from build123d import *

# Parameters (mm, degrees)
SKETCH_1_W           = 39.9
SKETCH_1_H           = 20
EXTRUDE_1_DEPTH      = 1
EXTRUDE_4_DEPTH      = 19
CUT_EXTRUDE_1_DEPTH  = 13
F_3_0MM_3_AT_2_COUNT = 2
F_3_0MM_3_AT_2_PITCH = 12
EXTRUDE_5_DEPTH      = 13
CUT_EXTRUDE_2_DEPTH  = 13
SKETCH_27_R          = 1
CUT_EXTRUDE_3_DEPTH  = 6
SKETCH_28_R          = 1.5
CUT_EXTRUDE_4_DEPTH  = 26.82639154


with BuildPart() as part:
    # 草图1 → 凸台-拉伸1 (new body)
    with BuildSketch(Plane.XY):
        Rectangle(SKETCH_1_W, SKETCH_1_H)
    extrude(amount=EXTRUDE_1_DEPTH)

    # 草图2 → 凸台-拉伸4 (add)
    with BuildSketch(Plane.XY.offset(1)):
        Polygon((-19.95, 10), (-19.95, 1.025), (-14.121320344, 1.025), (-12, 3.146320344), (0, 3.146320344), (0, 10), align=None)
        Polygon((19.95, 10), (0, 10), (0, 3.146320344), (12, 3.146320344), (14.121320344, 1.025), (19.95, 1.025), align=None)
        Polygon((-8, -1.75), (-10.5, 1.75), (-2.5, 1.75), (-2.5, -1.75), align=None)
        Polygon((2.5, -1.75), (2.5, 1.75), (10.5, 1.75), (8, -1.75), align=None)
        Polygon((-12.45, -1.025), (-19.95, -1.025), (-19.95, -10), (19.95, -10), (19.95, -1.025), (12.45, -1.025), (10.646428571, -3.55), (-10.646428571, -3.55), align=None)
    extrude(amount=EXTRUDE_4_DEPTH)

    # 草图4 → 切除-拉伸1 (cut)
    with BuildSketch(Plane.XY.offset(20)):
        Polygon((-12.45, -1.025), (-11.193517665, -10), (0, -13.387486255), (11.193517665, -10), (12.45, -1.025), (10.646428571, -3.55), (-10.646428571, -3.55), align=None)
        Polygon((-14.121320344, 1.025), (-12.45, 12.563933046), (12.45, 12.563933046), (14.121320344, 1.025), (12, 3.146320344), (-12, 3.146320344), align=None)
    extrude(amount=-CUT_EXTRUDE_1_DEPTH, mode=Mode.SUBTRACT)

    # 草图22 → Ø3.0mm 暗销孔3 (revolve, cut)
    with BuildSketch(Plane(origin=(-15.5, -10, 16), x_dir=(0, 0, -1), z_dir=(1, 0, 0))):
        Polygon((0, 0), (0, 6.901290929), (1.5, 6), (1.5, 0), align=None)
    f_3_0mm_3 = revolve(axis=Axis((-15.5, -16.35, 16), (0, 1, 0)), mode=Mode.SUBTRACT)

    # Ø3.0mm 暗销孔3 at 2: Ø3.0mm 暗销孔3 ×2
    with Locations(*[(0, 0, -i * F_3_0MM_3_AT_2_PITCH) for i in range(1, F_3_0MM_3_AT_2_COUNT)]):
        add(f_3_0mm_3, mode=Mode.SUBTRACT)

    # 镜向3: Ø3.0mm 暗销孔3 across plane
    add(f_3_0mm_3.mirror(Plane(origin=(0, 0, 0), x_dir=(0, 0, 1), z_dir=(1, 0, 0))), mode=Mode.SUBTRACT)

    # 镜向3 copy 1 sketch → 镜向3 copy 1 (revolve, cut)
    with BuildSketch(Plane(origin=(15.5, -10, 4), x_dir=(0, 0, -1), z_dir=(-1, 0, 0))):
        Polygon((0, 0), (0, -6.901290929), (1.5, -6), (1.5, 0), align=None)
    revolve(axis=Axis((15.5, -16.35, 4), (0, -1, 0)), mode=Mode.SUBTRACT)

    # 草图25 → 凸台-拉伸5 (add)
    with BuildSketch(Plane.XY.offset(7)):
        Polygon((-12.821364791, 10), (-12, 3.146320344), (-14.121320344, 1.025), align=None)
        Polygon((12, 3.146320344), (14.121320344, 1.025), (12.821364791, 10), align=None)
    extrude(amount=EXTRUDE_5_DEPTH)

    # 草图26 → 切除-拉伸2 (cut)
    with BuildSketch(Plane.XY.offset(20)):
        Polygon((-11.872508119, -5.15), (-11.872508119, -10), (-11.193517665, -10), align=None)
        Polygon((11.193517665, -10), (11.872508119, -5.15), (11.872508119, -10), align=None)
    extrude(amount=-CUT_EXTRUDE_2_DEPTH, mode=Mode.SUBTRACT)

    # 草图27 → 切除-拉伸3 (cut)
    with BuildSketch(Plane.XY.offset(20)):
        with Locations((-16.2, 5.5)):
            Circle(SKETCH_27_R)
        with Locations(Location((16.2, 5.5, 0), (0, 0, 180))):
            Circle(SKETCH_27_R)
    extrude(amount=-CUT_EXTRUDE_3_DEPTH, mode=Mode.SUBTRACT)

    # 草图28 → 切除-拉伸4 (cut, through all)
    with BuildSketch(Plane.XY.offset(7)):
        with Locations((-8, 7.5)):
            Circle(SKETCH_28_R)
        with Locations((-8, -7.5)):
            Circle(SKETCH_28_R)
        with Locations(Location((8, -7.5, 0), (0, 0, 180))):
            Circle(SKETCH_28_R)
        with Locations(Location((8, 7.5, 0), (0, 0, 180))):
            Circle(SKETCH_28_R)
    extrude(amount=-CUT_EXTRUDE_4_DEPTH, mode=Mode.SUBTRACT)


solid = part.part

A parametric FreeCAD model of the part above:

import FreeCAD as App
import Part
import Sketcher
from FreeCAD import Vector
Q = App.Units.Quantity


def add_polygon(sketch, points):
    """Adds a closed chain of lines whose ends are joined by coincident constraints."""
    first, n = sketch.GeometryCount, len(points)
    for a, b in zip(points, points[1:] + points[:1]):
        sketch.addGeometry(Part.LineSegment(App.Vector(*a, 0), App.Vector(*b, 0)), False)
    for i in range(n):
        sketch.addConstraint(Sketcher.Constraint("Coincident", first + i, 2, first + (i + 1) % n, 1))

doc = App.newDocument("Part")
body = doc.addObject("PartDesign::Body", "Body")

# Sketch on XY plane
sketch1 = body.newObject("Sketcher::SketchObject", "Sketch")
sketch1.AttachmentSupport = (doc.getObject("XY_Plane"), [""])
sketch1.MapMode = "FlatFace"
add_polygon(sketch1, [(-20, 10), (-20, -10), (20, -10), (20, 10)])  # lines 0-3
sketch1.addConstraint([
    Sketcher.Constraint("Vertical", 0),
    Sketcher.Constraint("Horizontal", 1),
    Sketcher.Constraint("Vertical", 2),
    Sketcher.Constraint("Horizontal", 3),
    Sketcher.Constraint("Symmetric", 0, 2, 2, 2, -1, 1),
    Sketcher.Constraint("DistanceY", 0, 2, 0, 1, 20.0),
    Sketcher.Constraint("DistanceX", 1, 1, 1, 2, 39.9),
])
pad1 = body.newObject("PartDesign::Pad", "Pad")
pad1.Profile = sketch1
pad1.Length = 1

# Sketch on XY plane
sketch2 = body.newObject("Sketcher::SketchObject", "Sketch001")
sketch2.AttachmentSupport = (doc.getObject("XY_Plane"), [""])
sketch2.MapMode = "FlatFace"
sketch2.AttachmentOffset = App.Placement(Vector(0, 0, 1), App.Rotation())
add_polygon(sketch2, [(-19.9, 10), (-19.9, 1), (-14.1, 1), (-12, 3.1), (12, 3.1), (14.1, 1), (19.9, 1), (19.9, 10)])  # lines 0-7
add_polygon(sketch2, [(-10.5, 1.8), (-8, -1.8), (-2.5, -1.8), (-2.5, 1.8)])  # lines 8-11
add_polygon(sketch2, [(2.5, 1.8), (2.5, -1.8), (8, -1.8), (10.5, 1.8)])  # lines 12-15
add_polygon(sketch2, [(-12.4, -1), (-19.9, -1), (-19.9, -10), (19.9, -10), (19.9, -1), (12.4, -1), (10.6, -3.5), (-10.6, -3.5)])  # lines 16-23
sketch2.addConstraint([
    Sketcher.Constraint("Vertical", 0),
    Sketcher.Constraint("Horizontal", 1),
    Sketcher.Constraint("Horizontal", 3),
    Sketcher.Constraint("Horizontal", 5),
    Sketcher.Constraint("Vertical", 6),
    Sketcher.Constraint("Horizontal", 7),
    Sketcher.Constraint("Horizontal", 9),
    Sketcher.Constraint("Vertical", 10),
    Sketcher.Constraint("Horizontal", 11),
    Sketcher.Constraint("Vertical", 12),
    Sketcher.Constraint("Horizontal", 13),
    Sketcher.Constraint("Horizontal", 15),
    Sketcher.Constraint("Horizontal", 16),
    Sketcher.Constraint("Vertical", 17),
    Sketcher.Constraint("Horizontal", 18),
    Sketcher.Constraint("Vertical", 19),
    Sketcher.Constraint("Horizontal", 20),
    Sketcher.Constraint("Horizontal", 22),
    Sketcher.Constraint("Symmetric", 10, 2, 12, 2, -1, 1),
    Sketcher.Constraint("Symmetric", 5, 2, 16, 2, -1, 1),
    Sketcher.Constraint("Symmetric", 7, 2, 18, 2, -1, 1),
    Sketcher.Constraint("Symmetric", 1, 2, 4, 2, -2),
    Sketcher.Constraint("Symmetric", 8, 2, 13, 2, -2),
    Sketcher.Constraint("Symmetric", 11, 2, 14, 2, -2),
    Sketcher.Constraint("Symmetric", 16, 2, 19, 2, -2),
    Sketcher.Constraint("Perpendicular", 2, 4),
    Sketcher.Constraint("Parallel", 14, 21),
    Sketcher.Constraint("Parallel", 8, 23),
    Sketcher.Constraint("Equal", 16, 20),
    Sketcher.Constraint("Equal", 2, 4),
    Sketcher.Constraint("DistanceX", 3, 1, 3, 2, 24.0),
    Sketcher.Constraint("DistanceX", 11, 2, 11, 1, 8.0),
    Sketcher.Constraint("Distance", 2, 3.0),
    Sketcher.Constraint("DistanceX", 7, 2, 7, 1, 39.9),
    Sketcher.Constraint("DistanceX", 9, 1, 9, 2, 5.5),
    Sketcher.Constraint("DistanceX", 16, 2, 16, 1, 7.5),
    Sketcher.Constraint("DistanceY", 10, 1, 10, 2, 3.5),
    Sketcher.Constraint("DistanceY", -1, 1, 6, 2, 10.0),
    Sketcher.Constraint("DistanceX", 8, 2, -1, 1, 8.0),
    Sketcher.Constraint("DistanceY", 21, 2, 13, 2, 1.8),
    Sketcher.Constraint("DistanceY", 0, 2, 0, 1, 8.975),
])
pad2 = body.newObject("PartDesign::Pad", "Pad001")
pad2.Profile = sketch2
pad2.Length = 19

# Sketch on XY plane
sketch3 = body.newObject("Sketcher::SketchObject", "Sketch002")
sketch3.AttachmentSupport = (doc.getObject("XY_Plane"), [""])
sketch3.MapMode = "FlatFace"
sketch3.AttachmentOffset = App.Placement(Vector(0, 0, 20), App.Rotation())
add_polygon(sketch3, [(-12.4, -1), (-11.2, -10), (0, -13.4), (11.2, -10), (12.4, -1), (10.6, -3.5), (-10.6, -3.5)])  # lines 0-6
add_polygon(sketch3, [(-12.4, 12.6), (-14.1, 1), (-12, 3.1), (12, 3.1), (14.1, 1), (12.4, 12.6)])  # lines 7-12
sketch3.addConstraint([
    Sketcher.Constraint("Horizontal", 5),
    Sketcher.Constraint("Horizontal", 9),
    Sketcher.Constraint("Horizontal", 12),
    Sketcher.Constraint("Symmetric", 0, 2, 2, 2, -2),
    Sketcher.Constraint("Symmetric", 3, 2, 6, 2, -2),
    Sketcher.Constraint("Symmetric", 7, 2, 10, 2, -2),
    Sketcher.Constraint("PointOnObject", 1, 2, -2),
    Sketcher.Constraint("Perpendicular", 8, 10),
    Sketcher.Constraint("Vertical", 3, 2, 11, 2),
    Sketcher.Constraint("Vertical", 6, 2, 12, 2),
    Sketcher.Constraint("Equal", 4, 6),
    Sketcher.Constraint("Equal", 8, 10),
    Sketcher.Constraint("DistanceX", 9, 1, 9, 2, 24.0),
    Sketcher.Constraint("Distance", 8, 3.0),
    Sketcher.Constraint("DistanceX", 12, 2, 12, 1, 24.9),
    Sketcher.Constraint("DistanceY", 0, 2, -1, 1, 10.0),
    Sketcher.Constraint("DistanceY", 4, 2, -1, 1, 3.55),
    Sketcher.Constraint("DistanceY", 6, 2, 7, 2, 2.05),
    Sketcher.Constraint("DistanceY", 3, 2, -1, 1, 1.025),
    Sketcher.Constraint("Distance", 4, 3.102982),
    Sketcher.Constraint("DistanceX", 4, 2, 2, 2, 0.547089),
    Sketcher.Constraint("Distance", 1, 11.694866),
    Sketcher.Constraint("Distance", 7, 11.659343),
])
pocket1 = body.newObject("PartDesign::Pocket", "Pocket")
pocket1.Profile = sketch3
pocket1.Length = 13

# Sketch on YZ plane
sketch4 = body.newObject("Sketcher::SketchObject", "Sketch003")
sketch4.AttachmentSupport = (doc.getObject("YZ_Plane"), [""])
sketch4.MapMode = "FlatFace"
sketch4.AttachmentOffset = App.Placement(Vector(0, 0, -15.5), App.Rotation())
add_polygon(sketch4, [(-3.1, 16), (-10, 16), (-10, 14.5), (-4, 14.5)])  # lines 0-3
sketch4.addGeometry(Part.LineSegment(Vector(-10, 16, 0), Vector(-3.1, 16, 0)), True)  # axis
sketch4.addConstraint([
    Sketcher.Constraint("Horizontal", 0),
    Sketcher.Constraint("Vertical", 1),
    Sketcher.Constraint("Horizontal", 2),
    Sketcher.Constraint("Horizontal", 4),
    Sketcher.Constraint("Coincident", 4, 1, 0, 2),
    Sketcher.Constraint("Equal", 0, 4),
    Sketcher.Constraint("DistanceX", 2, 1, 2, 2, 6.0),
    Sketcher.Constraint("Angle", 3, Q("59 deg")),
    Sketcher.Constraint("DistanceY", 1, 2, 1, 1, 1.5),
    Sketcher.Constraint("DistanceX", 0, 2, -1, 1, 10.0),
    Sketcher.Constraint("DistanceY", -1, 1, 0, 2, 16.0),
])
groove = body.newObject("PartDesign::Groove", "Groove")
groove.Profile = sketch4
groove.ReferenceAxis = (sketch4, ["Axis0"])
groove.Angle = 360
doc.recompute()

linearpattern = body.newObject("PartDesign::LinearPattern", "LinearPattern")
linearpattern.Originals = [groove]
linearpattern.Direction = (doc.getObject("Z_Axis"), [""])
linearpattern.Mode = "offset"
linearpattern.Offset = 12
linearpattern.Occurrences = 2
linearpattern.Reversed = True
body.Tip = linearpattern
doc.recompute()

mirrored = body.newObject("PartDesign::Mirrored", "Mirrored")
mirrored.Originals = [groove]
mirrored.MirrorPlane = (doc.getObject("YZ_Plane"), [""])
body.Tip = mirrored

# Sketch on YZ plane
sketch5 = body.newObject("Sketcher::SketchObject", "Sketch004")
sketch5.AttachmentSupport = (doc.getObject("YZ_Plane"), [""])
sketch5.MapMode = "FlatFace"
sketch5.AttachmentOffset = App.Placement(Vector(0, 0, 15.5), App.Rotation())
add_polygon(sketch5, [(-10, 4), (-3.1, 4), (-4, 2.5), (-10, 2.5)])  # lines 0-3
sketch5.addGeometry(Part.LineSegment(Vector(-3.1, 4, 0), Vector(-10, 4, 0)), True)  # axis
sketch5.addConstraint([
    Sketcher.Constraint("Horizontal", 0),
    Sketcher.Constraint("Horizontal", 2),
    Sketcher.Constraint("Vertical", 3),
    Sketcher.Constraint("Horizontal", 4),
    Sketcher.Constraint("Coincident", 4, 1, 0, 2),
    Sketcher.Constraint("Vertical", 2, 2, 4, 2),
    Sketcher.Constraint("DistanceX", 2, 2, 2, 1, 6.0),
    Sketcher.Constraint("Angle", 1, Q("-121 deg")),
    Sketcher.Constraint("DistanceY", 3, 1, 3, 2, 1.5),
    Sketcher.Constraint("DistanceY", -1, 1, 0, 2, 4.0),
    Sketcher.Constraint("DistanceX", 1, 2, -1, 1, 4.0),
])
groove2 = body.newObject("PartDesign::Groove", "Groove001")
groove2.Profile = sketch5
groove2.ReferenceAxis = (sketch5, ["Axis0"])
groove2.Angle = 360

# Sketch on XY plane
sketch6 = body.newObject("Sketcher::SketchObject", "Sketch005")
sketch6.AttachmentSupport = (doc.getObject("XY_Plane"), [""])
sketch6.MapMode = "FlatFace"
sketch6.AttachmentOffset = App.Placement(Vector(0, 0, 7), App.Rotation())
add_polygon(sketch6, [(-12, 3.1), (-12.8, 10), (-14.1, 1)])  # lines 0-2
add_polygon(sketch6, [(12, 3.1), (14.1, 1), (12.8, 10)])  # lines 3-5
sketch6.addConstraint([
    Sketcher.Constraint("Symmetric", 1, 2, 3, 2, -2),
    Sketcher.Constraint("Symmetric", 0, 2, 4, 2, -2),
    Sketcher.Constraint("Symmetric", 2, 2, 5, 2, -2),
    Sketcher.Constraint("Perpendicular", 2, 3),
    Sketcher.Constraint("Distance", 2, 3.0),
    Sketcher.Constraint("DistanceY", -1, 1, 0, 2, 10.0),
    Sketcher.Constraint("DistanceX", 2, 2, -1, 1, 12.0),
    Sketcher.Constraint("DistanceY", -1, 1, 1, 2, 1.025),
    Sketcher.Constraint("Distance", 0, 6.902722),
])
pad3 = body.newObject("PartDesign::Pad", "Pad002")
pad3.Profile = sketch6
pad3.Length = 13

# Sketch on XY plane
sketch7 = body.newObject("Sketcher::SketchObject", "Sketch006")
sketch7.AttachmentSupport = (doc.getObject("XY_Plane"), [""])
sketch7.MapMode = "FlatFace"
sketch7.AttachmentOffset = App.Placement(Vector(0, 0, 20), App.Rotation())
add_polygon(sketch7, [(-11.9, -5.2), (-11.9, -10), (-11.2, -10)])  # lines 0-2
add_polygon(sketch7, [(11.9, -5.2), (11.2, -10), (11.9, -10)])  # lines 3-5
sketch7.addConstraint([
    Sketcher.Constraint("Vertical", 0),
    Sketcher.Constraint("Horizontal", 1),
    Sketcher.Constraint("Horizontal", 4),
    Sketcher.Constraint("Vertical", 5),
    Sketcher.Constraint("Symmetric", 1, 2, 3, 2, -2),
    Sketcher.Constraint("Symmetric", 2, 2, 5, 2, -2),
    Sketcher.Constraint("DistanceY", 0, 2, -1, 1, 10.0),
    Sketcher.Constraint("DistanceY", 0, 2, 0, 1, 4.85),
    Sketcher.Constraint("Distance", 2, 4.897298),
    Sketcher.Constraint("DistanceX", 0, 2, -1, 1, 11.872508),
])
pocket2 = body.newObject("PartDesign::Pocket", "Pocket001")
pocket2.Profile = sketch7
pocket2.Length = 13

# Sketch on XY plane
sketch8 = body.newObject("Sketcher::SketchObject", "Sketch007")
sketch8.AttachmentSupport = (doc.getObject("XY_Plane"), [""])
sketch8.MapMode = "FlatFace"
sketch8.AttachmentOffset = App.Placement(Vector(0, 0, 20), App.Rotation())
sketch8.addGeometry([
    Part.Circle(Vector(-16.2, 5.5, 0), Vector(0, 0, 1), 1),
    Part.Circle(Vector(16.2, 5.5, 0), Vector(0, 0, 1), 1),
], False)
sketch8.addConstraint([
    Sketcher.Constraint("Equal", 0, 1),
    Sketcher.Constraint("Symmetric", 0, 3, 1, 3, -2),
    Sketcher.Constraint("Diameter", 0, 2.0),
    Sketcher.Constraint("DistanceX", 0, 3, -1, 1, 16.2),
    Sketcher.Constraint("DistanceY", -1, 1, 0, 3, 5.5),
])
pocket3 = body.newObject("PartDesign::Pocket", "Pocket002")
pocket3.Profile = sketch8
pocket3.Length = 6

# Sketch on XY plane
sketch9 = body.newObject("Sketcher::SketchObject", "Sketch008")
sketch9.AttachmentSupport = (doc.getObject("XY_Plane"), [""])
sketch9.MapMode = "FlatFace"
sketch9.AttachmentOffset = App.Placement(Vector(0, 0, 7), App.Rotation())
sketch9.addGeometry([
    Part.Circle(Vector(-8, 7.5, 0), Vector(0, 0, 1), 1.5),
    Part.Circle(Vector(-8, -7.5, 0), Vector(0, 0, 1), 1.5),
    Part.Circle(Vector(8, -7.5, 0), Vector(0, 0, 1), 1.5),
    Part.Circle(Vector(8, 7.5, 0), Vector(0, 0, 1), 1.5),
], False)
sketch9.addConstraint([
    Sketcher.Constraint("Equal", 0, 1),
    Sketcher.Constraint("Equal", 1, 2),
    Sketcher.Constraint("Equal", 2, 3),
    Sketcher.Constraint("Symmetric", 0, 3, 2, 3, -1, 1),
    Sketcher.Constraint("Symmetric", 1, 3, 3, 3, -1, 1),
    Sketcher.Constraint("Symmetric", 1, 3, 2, 3, -2),
    Sketcher.Constraint("Diameter", 0, 3.0),
    Sketcher.Constraint("DistanceX", 0, 3, -1, 1, 8.0),
    Sketcher.Constraint("DistanceY", 1, 3, 0, 3, 15.0),
])
pocket4 = body.newObject("PartDesign::Pocket", "Pocket003")
pocket4.Profile = sketch9
pocket4.Type = "ThroughAll"

doc.recompute()
